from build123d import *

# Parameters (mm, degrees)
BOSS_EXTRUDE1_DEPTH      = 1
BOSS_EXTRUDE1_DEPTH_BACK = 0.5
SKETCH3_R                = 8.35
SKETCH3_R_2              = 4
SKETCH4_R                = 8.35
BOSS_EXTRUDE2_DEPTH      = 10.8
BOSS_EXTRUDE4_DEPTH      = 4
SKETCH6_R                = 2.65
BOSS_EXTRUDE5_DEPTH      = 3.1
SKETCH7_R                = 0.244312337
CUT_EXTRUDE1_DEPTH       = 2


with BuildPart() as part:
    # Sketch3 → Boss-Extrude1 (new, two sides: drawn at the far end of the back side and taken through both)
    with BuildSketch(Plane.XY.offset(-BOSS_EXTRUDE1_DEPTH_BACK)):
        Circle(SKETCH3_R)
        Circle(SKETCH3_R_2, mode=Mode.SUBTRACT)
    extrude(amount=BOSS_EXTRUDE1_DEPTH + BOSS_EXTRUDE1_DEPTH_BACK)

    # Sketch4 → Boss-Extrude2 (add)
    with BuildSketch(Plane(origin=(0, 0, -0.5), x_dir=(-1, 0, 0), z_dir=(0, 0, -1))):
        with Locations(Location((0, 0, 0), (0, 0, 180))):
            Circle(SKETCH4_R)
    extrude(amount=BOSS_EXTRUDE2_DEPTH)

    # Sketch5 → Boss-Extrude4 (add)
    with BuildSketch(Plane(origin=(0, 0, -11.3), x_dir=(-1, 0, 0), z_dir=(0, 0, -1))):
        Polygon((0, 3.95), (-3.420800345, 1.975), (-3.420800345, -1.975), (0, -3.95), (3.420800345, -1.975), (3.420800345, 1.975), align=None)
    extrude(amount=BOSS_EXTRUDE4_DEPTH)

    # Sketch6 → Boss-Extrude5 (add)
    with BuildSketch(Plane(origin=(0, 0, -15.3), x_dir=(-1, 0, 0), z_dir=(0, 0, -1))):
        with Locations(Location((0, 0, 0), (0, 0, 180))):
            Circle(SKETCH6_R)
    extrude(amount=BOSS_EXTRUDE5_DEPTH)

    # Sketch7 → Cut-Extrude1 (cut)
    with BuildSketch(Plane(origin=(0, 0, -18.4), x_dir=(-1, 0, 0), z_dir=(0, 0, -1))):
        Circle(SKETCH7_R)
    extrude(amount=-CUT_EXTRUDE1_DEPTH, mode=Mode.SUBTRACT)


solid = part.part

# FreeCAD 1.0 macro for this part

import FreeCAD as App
import Part
import Sketcher

V = App.Vector
Q = App.Units.Quantity

doc = App.newDocument("Part")
params = doc.addObject("Spreadsheet::Sheet", "Params")
for row, (alias, value) in enumerate([
    ("sketch1_diameter", "8 mm"),
    ("sketch1_diameter2", "16.7 mm"),
    ("pad1_length", "1 mm"),
    ("pad1_length2", "0.5 mm"),
    ("sketch2_diameter", "16.7 mm"),
    ("pad2_length", "10.8 mm"),
    ("sketch3_height", "3.95 mm"),
    ("pad3_length", "4 mm"),
    ("sketch4_diameter", "5.3 mm"),
    ("pad4_length", "3.1 mm"),
    ("pocket1_length", "2 mm"),
], start=1):
    params.set(f"A{row}", alias)
    params.set(f"B{row}", "=" + value)
    params.setAlias(f"B{row}", alias)

body = doc.addObject("PartDesign::Body", "Body")

# Sketch on XY plane
sketch1 = body.newObject("Sketcher::SketchObject", "Sketch")
sketch1.AttachmentSupport = (doc.getObject("XY_Plane"), [""])
sketch1.MapMode = "FlatFace"
sketch1.addGeometry(Part.Circle(V(0, 0, 0), V(0, 0, 1), 8.3), False)
sketch1.addGeometry(Part.Circle(V(0, 0, 0), V(0, 0, 1), 4), False)
sketch1.addConstraint(Sketcher.Constraint("Coincident", 0, 3, -1, 1))
sketch1.addConstraint(Sketcher.Constraint("Coincident", 1, 3, -1, 1))
sketch1.addConstraint(Sketcher.Constraint("Diameter", 1, Q("8 mm")))
sketch1.addConstraint(Sketcher.Constraint("Diameter", 0, Q("16.7 mm")))
sketch1.setExpression("Constraints[2]", "Params.sketch1_diameter")
sketch1.setExpression("Constraints[3]", "Params.sketch1_diameter2")
pad1 = body.newObject("PartDesign::Pad", "Pad")
pad1.Profile = sketch1
pad1.Type = "TwoLengths"
pad1.setExpression("Length", "Params.pad1_length")
pad1.setExpression("Length2", "Params.pad1_length2")

# Sketch on XY plane
sketch2 = body.newObject("Sketcher::SketchObject", "Sketch001")
sketch2.AttachmentSupport = (doc.getObject("XY_Plane"), [""])
sketch2.MapMode = "FlatFace"
sketch2.AttachmentOffset = App.Placement(V(0, 0, -0.5), App.Rotation())
sketch2.addGeometry(Part.Circle(V(0, 0, 0), V(0, 0, 1), 8), False)
sketch2.addConstraint(Sketcher.Constraint("Coincident", 0, 3, -1, 1))
sketch2.addConstraint(Sketcher.Constraint("Diameter", 0, Q("16.7 mm")))
sketch2.setExpression("Constraints[1]", "Params.sketch2_diameter")
pad2 = body.newObject("PartDesign::Pad", "Pad001")
pad2.Profile = sketch2
pad2.setExpression("Length", "Params.pad2_length")
pad2.Reversed = True

# Sketch on XY plane
sketch3 = body.newObject("Sketcher::SketchObject", "Sketch002")
sketch3.AttachmentSupport = (doc.getObject("XY_Plane"), [""])
sketch3.MapMode = "FlatFace"
sketch3.AttachmentOffset = App.Placement(V(0, 0, -11.3), App.Rotation())
sketch3.addGeometry(Part.LineSegment(V(0, 4, 0), V(3.4, 2, 0)), False)
sketch3.addGeometry(Part.LineSegment(V(3.4, 2, 0), V(3.4, -2, 0)), False)
sketch3.addGeometry(Part.LineSegment(V(3.4, -2, 0), V(0, -4, 0)), False)
sketch3.addGeometry(Part.LineSegment(V(0, -4, 0), V(-3.4, -2, 0)), False)
sketch3.addGeometry(Part.LineSegment(V(-3.4, -2, 0), V(-3.4, 2, 0)), False)
sketch3.addGeometry(Part.LineSegment(V(-3.4, 2, 0), V(0, 4, 0)), False)
sketch3.addConstraint(Sketcher.Constraint("Coincident", 0, 2, 1, 1))
sketch3.addConstraint(Sketcher.Constraint("Coincident", 1, 2, 2, 1))
sketch3.addConstraint(Sketcher.Constraint("Coincident", 2, 2, 3, 1))
sketch3.addConstraint(Sketcher.Constraint("Coincident", 3, 2, 4, 1))
sketch3.addConstraint(Sketcher.Constraint("Coincident", 4, 2, 5, 1))
sketch3.addConstraint(Sketcher.Constraint("Coincident", 5, 2, 0, 1))
sketch3.addConstraint(Sketcher.Constraint("Vertical", 1))
sketch3.addConstraint(Sketcher.Constraint("Vertical", 4))
sketch3.addConstraint(Sketcher.Constraint("Symmetric", 0, 2, 3, 2, -1, 1))
sketch3.addConstraint(Sketcher.Constraint("Symmetric", 2, 2, 5, 2, -1, 1))
sketch3.addConstraint(Sketcher.Constraint("PointOnObject", 2, 2, -2))
sketch3.addConstraint(Sketcher.Constraint("Parallel", 2, 5))
sketch3.addConstraint(Sketcher.Constraint("Horizontal", 1, 2, 3, 2))
sketch3.addConstraint(Sketcher.Constraint("Angle", 0, Q("-30 deg")))
sketch3.addConstraint(Sketcher.Constraint("DistanceY", 1, 2, 1, 1, Q("3.95 mm")))
sketch3.addConstraint(Sketcher.Constraint("DistanceY", 2, 2, 5, 2, Q("7.9 mm")))
sketch3.setExpression("Constraints[14]", "Params.sketch3_height")
pad3 = body.newObject("PartDesign::Pad", "Pad002")
pad3.Profile = sketch3
pad3.setExpression("Length", "Params.pad3_length")
pad3.Reversed = True

# Sketch on XY plane
sketch4 = body.newObject("Sketcher::SketchObject", "Sketch003")
sketch4.AttachmentSupport = (doc.getObject("XY_Plane"), [""])
sketch4.MapMode = "FlatFace"
sketch4.AttachmentOffset = App.Placement(V(0, 0, -15.3), App.Rotation())
sketch4.addGeometry(Part.Circle(V(0, 0, 0), V(0, 0, 1), 2.6), False)
sketch4.addConstraint(Sketcher.Constraint("Coincident", 0, 3, -1, 1))
sketch4.addConstraint(Sketcher.Constraint("Diameter", 0, Q("5.3 mm")))
sketch4.setExpression("Constraints[1]", "Params.sketch4_diameter")
pad4 = body.newObject("PartDesign::Pad", "Pad003")
pad4.Profile = sketch4
pad4.setExpression("Length", "Params.pad4_length")
pad4.Reversed = True

# Sketch on XY plane
sketch5 = body.newObject("Sketcher::SketchObject", "Sketch004")
sketch5.AttachmentSupport = (doc.getObject("XY_Plane"), [""])
sketch5.MapMode = "FlatFace"
sketch5.AttachmentOffset = App.Placement(V(0, 0, -18.4), App.Rotation())
sketch5.addGeometry(Part.Circle(V(0, 0, 0), V(0, 0, 1), 0.24), False)
sketch5.addConstraint(Sketcher.Constraint("Coincident", 0, 3, -1, 1))
sketch5.addConstraint(Sketcher.Constraint("Diameter", 0, Q("0.488625 mm")))
pocket1 = body.newObject("PartDesign::Pocket", "Pocket")
pocket1.Profile = sketch5
pocket1.setExpression("Length", "Params.pocket1_length")
pocket1.Reversed = True

doc.recompute()
